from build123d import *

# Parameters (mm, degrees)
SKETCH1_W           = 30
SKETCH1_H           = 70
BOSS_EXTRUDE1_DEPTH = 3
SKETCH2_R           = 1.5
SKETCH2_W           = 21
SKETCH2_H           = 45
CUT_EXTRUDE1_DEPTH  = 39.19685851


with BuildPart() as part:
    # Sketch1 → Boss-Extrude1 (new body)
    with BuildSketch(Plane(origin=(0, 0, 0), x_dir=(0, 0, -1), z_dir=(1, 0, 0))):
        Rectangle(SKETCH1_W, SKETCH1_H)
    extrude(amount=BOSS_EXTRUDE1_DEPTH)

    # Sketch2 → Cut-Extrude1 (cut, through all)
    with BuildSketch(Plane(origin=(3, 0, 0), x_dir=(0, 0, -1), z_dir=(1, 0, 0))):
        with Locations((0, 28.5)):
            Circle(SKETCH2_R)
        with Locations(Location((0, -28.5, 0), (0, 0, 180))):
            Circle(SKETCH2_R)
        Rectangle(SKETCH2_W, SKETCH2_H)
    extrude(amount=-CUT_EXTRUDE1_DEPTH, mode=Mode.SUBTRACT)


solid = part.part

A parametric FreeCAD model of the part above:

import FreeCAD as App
import Part
import Sketcher
from FreeCAD import Vector

doc = App.newDocument("Part")
body = doc.addObject("PartDesign::Body", "Body")

# Sketch on YZ plane
sketch1 = body.newObject("Sketcher::SketchObject", "Sketch")
sketch1.AttachmentSupport = (doc.getObject("YZ_Plane"), [""])
sketch1.MapMode = "FlatFace"
sketch1.addGeometry([
    Part.LineSegment(Vector(35, 15, 0), Vector(-35, 15, 0)),
    Part.LineSegment(Vector(-35, 15, 0), Vector(-35, -15, 0)),
    Part.LineSegment(Vector(-35, -15, 0), Vector(35, -15, 0)),
    Part.LineSegment(Vector(35, -15, 0), Vector(35, 15, 0)),
], False)
sketch1.addConstraint([
    Sketcher.Constraint("Coincident", 0, 2, 1, 1),
    Sketcher.Constraint("Coincident", 1, 2, 2, 1),
    Sketcher.Constraint("Coincident", 2, 2, 3, 1),
    Sketcher.Constraint("Coincident", 3, 2, 0, 1),
    Sketcher.Constraint("Horizontal", 0),
    Sketcher.Constraint("Vertical", 1),
    Sketcher.Constraint("Horizontal", 2),
    Sketcher.Constraint("Vertical", 3),
    Sketcher.Constraint("Symmetric", 0, 2, 2, 2, -1, 1),
    Sketcher.Constraint("DistanceX", 0, 2, 0, 1, 70.0),
    Sketcher.Constraint("DistanceY", 1, 2, 1, 1, 30.0),
])
pad1 = body.newObject("PartDesign::Pad", "Pad")
pad1.Profile = sketch1
pad1.Length = 3

# Sketch on YZ plane
sketch2 = body.newObject("Sketcher::SketchObject", "Sketch001")
sketch2.AttachmentSupport = (doc.getObject("YZ_Plane"), [""])
sketch2.MapMode = "FlatFace"
sketch2.AttachmentOffset = App.Placement(Vector(0, 0, 3), App.Rotation())
sketch2.addGeometry([
    Part.Circle(Vector(28.5, 0, 0), Vector(0, 0, 1), 1.5),  # 0
    Part.Circle(Vector(-28.5, 0, 0), Vector(0, 0, 1), 1.5),  # 1
    Part.LineSegment(Vector(22.5, 10.5, 0), Vector(-22.5, 10.5, 0)),  # 2
    Part.LineSegment(Vector(-22.5, 10.5, 0), Vector(-22.5, -10.5, 0)),  # 3
    Part.LineSegment(Vector(-22.5, -10.5, 0), Vector(22.5, -10.5, 0)),  # 4
    Part.LineSegment(Vector(22.5, -10.5, 0), Vector(22.5, 10.5, 0)),  # 5
], False)
sketch2.addConstraint([
    Sketcher.Constraint("Coincident", 2, 2, 3, 1),
    Sketcher.Constraint("Coincident", 3, 2, 4, 1),
    Sketcher.Constraint("Coincident", 4, 2, 5, 1),
    Sketcher.Constraint("Coincident", 5, 2, 2, 1),
    Sketcher.Constraint("Horizontal", 2),
    Sketcher.Constraint("Vertical", 3),
    Sketcher.Constraint("Horizontal", 4),
    Sketcher.Constraint("Vertical", 5),
    Sketcher.Constraint("Equal", 0, 1),
    Sketcher.Constraint("Symmetric", 0, 3, 1, 3, -1, 1),
    Sketcher.Constraint("Symmetric", 2, 2, 4, 2, -1, 1),
    Sketcher.Constraint("PointOnObject", 0, 3, -1),
    Sketcher.Constraint("Diameter", 0, 3.0),
    Sketcher.Constraint("DistanceX", 2, 2, 2, 1, 45.0),
    Sketcher.Constraint("DistanceY", 3, 2, 3, 1, 21.0),
    Sketcher.Constraint("DistanceX", 1, 3, 0, 3, 57.0),
])
pocket1 = body.newObject("PartDesign::Pocket", "Pocket")
pocket1.Profile = sketch2
pocket1.Type = "ThroughAll"

doc.recompute()
